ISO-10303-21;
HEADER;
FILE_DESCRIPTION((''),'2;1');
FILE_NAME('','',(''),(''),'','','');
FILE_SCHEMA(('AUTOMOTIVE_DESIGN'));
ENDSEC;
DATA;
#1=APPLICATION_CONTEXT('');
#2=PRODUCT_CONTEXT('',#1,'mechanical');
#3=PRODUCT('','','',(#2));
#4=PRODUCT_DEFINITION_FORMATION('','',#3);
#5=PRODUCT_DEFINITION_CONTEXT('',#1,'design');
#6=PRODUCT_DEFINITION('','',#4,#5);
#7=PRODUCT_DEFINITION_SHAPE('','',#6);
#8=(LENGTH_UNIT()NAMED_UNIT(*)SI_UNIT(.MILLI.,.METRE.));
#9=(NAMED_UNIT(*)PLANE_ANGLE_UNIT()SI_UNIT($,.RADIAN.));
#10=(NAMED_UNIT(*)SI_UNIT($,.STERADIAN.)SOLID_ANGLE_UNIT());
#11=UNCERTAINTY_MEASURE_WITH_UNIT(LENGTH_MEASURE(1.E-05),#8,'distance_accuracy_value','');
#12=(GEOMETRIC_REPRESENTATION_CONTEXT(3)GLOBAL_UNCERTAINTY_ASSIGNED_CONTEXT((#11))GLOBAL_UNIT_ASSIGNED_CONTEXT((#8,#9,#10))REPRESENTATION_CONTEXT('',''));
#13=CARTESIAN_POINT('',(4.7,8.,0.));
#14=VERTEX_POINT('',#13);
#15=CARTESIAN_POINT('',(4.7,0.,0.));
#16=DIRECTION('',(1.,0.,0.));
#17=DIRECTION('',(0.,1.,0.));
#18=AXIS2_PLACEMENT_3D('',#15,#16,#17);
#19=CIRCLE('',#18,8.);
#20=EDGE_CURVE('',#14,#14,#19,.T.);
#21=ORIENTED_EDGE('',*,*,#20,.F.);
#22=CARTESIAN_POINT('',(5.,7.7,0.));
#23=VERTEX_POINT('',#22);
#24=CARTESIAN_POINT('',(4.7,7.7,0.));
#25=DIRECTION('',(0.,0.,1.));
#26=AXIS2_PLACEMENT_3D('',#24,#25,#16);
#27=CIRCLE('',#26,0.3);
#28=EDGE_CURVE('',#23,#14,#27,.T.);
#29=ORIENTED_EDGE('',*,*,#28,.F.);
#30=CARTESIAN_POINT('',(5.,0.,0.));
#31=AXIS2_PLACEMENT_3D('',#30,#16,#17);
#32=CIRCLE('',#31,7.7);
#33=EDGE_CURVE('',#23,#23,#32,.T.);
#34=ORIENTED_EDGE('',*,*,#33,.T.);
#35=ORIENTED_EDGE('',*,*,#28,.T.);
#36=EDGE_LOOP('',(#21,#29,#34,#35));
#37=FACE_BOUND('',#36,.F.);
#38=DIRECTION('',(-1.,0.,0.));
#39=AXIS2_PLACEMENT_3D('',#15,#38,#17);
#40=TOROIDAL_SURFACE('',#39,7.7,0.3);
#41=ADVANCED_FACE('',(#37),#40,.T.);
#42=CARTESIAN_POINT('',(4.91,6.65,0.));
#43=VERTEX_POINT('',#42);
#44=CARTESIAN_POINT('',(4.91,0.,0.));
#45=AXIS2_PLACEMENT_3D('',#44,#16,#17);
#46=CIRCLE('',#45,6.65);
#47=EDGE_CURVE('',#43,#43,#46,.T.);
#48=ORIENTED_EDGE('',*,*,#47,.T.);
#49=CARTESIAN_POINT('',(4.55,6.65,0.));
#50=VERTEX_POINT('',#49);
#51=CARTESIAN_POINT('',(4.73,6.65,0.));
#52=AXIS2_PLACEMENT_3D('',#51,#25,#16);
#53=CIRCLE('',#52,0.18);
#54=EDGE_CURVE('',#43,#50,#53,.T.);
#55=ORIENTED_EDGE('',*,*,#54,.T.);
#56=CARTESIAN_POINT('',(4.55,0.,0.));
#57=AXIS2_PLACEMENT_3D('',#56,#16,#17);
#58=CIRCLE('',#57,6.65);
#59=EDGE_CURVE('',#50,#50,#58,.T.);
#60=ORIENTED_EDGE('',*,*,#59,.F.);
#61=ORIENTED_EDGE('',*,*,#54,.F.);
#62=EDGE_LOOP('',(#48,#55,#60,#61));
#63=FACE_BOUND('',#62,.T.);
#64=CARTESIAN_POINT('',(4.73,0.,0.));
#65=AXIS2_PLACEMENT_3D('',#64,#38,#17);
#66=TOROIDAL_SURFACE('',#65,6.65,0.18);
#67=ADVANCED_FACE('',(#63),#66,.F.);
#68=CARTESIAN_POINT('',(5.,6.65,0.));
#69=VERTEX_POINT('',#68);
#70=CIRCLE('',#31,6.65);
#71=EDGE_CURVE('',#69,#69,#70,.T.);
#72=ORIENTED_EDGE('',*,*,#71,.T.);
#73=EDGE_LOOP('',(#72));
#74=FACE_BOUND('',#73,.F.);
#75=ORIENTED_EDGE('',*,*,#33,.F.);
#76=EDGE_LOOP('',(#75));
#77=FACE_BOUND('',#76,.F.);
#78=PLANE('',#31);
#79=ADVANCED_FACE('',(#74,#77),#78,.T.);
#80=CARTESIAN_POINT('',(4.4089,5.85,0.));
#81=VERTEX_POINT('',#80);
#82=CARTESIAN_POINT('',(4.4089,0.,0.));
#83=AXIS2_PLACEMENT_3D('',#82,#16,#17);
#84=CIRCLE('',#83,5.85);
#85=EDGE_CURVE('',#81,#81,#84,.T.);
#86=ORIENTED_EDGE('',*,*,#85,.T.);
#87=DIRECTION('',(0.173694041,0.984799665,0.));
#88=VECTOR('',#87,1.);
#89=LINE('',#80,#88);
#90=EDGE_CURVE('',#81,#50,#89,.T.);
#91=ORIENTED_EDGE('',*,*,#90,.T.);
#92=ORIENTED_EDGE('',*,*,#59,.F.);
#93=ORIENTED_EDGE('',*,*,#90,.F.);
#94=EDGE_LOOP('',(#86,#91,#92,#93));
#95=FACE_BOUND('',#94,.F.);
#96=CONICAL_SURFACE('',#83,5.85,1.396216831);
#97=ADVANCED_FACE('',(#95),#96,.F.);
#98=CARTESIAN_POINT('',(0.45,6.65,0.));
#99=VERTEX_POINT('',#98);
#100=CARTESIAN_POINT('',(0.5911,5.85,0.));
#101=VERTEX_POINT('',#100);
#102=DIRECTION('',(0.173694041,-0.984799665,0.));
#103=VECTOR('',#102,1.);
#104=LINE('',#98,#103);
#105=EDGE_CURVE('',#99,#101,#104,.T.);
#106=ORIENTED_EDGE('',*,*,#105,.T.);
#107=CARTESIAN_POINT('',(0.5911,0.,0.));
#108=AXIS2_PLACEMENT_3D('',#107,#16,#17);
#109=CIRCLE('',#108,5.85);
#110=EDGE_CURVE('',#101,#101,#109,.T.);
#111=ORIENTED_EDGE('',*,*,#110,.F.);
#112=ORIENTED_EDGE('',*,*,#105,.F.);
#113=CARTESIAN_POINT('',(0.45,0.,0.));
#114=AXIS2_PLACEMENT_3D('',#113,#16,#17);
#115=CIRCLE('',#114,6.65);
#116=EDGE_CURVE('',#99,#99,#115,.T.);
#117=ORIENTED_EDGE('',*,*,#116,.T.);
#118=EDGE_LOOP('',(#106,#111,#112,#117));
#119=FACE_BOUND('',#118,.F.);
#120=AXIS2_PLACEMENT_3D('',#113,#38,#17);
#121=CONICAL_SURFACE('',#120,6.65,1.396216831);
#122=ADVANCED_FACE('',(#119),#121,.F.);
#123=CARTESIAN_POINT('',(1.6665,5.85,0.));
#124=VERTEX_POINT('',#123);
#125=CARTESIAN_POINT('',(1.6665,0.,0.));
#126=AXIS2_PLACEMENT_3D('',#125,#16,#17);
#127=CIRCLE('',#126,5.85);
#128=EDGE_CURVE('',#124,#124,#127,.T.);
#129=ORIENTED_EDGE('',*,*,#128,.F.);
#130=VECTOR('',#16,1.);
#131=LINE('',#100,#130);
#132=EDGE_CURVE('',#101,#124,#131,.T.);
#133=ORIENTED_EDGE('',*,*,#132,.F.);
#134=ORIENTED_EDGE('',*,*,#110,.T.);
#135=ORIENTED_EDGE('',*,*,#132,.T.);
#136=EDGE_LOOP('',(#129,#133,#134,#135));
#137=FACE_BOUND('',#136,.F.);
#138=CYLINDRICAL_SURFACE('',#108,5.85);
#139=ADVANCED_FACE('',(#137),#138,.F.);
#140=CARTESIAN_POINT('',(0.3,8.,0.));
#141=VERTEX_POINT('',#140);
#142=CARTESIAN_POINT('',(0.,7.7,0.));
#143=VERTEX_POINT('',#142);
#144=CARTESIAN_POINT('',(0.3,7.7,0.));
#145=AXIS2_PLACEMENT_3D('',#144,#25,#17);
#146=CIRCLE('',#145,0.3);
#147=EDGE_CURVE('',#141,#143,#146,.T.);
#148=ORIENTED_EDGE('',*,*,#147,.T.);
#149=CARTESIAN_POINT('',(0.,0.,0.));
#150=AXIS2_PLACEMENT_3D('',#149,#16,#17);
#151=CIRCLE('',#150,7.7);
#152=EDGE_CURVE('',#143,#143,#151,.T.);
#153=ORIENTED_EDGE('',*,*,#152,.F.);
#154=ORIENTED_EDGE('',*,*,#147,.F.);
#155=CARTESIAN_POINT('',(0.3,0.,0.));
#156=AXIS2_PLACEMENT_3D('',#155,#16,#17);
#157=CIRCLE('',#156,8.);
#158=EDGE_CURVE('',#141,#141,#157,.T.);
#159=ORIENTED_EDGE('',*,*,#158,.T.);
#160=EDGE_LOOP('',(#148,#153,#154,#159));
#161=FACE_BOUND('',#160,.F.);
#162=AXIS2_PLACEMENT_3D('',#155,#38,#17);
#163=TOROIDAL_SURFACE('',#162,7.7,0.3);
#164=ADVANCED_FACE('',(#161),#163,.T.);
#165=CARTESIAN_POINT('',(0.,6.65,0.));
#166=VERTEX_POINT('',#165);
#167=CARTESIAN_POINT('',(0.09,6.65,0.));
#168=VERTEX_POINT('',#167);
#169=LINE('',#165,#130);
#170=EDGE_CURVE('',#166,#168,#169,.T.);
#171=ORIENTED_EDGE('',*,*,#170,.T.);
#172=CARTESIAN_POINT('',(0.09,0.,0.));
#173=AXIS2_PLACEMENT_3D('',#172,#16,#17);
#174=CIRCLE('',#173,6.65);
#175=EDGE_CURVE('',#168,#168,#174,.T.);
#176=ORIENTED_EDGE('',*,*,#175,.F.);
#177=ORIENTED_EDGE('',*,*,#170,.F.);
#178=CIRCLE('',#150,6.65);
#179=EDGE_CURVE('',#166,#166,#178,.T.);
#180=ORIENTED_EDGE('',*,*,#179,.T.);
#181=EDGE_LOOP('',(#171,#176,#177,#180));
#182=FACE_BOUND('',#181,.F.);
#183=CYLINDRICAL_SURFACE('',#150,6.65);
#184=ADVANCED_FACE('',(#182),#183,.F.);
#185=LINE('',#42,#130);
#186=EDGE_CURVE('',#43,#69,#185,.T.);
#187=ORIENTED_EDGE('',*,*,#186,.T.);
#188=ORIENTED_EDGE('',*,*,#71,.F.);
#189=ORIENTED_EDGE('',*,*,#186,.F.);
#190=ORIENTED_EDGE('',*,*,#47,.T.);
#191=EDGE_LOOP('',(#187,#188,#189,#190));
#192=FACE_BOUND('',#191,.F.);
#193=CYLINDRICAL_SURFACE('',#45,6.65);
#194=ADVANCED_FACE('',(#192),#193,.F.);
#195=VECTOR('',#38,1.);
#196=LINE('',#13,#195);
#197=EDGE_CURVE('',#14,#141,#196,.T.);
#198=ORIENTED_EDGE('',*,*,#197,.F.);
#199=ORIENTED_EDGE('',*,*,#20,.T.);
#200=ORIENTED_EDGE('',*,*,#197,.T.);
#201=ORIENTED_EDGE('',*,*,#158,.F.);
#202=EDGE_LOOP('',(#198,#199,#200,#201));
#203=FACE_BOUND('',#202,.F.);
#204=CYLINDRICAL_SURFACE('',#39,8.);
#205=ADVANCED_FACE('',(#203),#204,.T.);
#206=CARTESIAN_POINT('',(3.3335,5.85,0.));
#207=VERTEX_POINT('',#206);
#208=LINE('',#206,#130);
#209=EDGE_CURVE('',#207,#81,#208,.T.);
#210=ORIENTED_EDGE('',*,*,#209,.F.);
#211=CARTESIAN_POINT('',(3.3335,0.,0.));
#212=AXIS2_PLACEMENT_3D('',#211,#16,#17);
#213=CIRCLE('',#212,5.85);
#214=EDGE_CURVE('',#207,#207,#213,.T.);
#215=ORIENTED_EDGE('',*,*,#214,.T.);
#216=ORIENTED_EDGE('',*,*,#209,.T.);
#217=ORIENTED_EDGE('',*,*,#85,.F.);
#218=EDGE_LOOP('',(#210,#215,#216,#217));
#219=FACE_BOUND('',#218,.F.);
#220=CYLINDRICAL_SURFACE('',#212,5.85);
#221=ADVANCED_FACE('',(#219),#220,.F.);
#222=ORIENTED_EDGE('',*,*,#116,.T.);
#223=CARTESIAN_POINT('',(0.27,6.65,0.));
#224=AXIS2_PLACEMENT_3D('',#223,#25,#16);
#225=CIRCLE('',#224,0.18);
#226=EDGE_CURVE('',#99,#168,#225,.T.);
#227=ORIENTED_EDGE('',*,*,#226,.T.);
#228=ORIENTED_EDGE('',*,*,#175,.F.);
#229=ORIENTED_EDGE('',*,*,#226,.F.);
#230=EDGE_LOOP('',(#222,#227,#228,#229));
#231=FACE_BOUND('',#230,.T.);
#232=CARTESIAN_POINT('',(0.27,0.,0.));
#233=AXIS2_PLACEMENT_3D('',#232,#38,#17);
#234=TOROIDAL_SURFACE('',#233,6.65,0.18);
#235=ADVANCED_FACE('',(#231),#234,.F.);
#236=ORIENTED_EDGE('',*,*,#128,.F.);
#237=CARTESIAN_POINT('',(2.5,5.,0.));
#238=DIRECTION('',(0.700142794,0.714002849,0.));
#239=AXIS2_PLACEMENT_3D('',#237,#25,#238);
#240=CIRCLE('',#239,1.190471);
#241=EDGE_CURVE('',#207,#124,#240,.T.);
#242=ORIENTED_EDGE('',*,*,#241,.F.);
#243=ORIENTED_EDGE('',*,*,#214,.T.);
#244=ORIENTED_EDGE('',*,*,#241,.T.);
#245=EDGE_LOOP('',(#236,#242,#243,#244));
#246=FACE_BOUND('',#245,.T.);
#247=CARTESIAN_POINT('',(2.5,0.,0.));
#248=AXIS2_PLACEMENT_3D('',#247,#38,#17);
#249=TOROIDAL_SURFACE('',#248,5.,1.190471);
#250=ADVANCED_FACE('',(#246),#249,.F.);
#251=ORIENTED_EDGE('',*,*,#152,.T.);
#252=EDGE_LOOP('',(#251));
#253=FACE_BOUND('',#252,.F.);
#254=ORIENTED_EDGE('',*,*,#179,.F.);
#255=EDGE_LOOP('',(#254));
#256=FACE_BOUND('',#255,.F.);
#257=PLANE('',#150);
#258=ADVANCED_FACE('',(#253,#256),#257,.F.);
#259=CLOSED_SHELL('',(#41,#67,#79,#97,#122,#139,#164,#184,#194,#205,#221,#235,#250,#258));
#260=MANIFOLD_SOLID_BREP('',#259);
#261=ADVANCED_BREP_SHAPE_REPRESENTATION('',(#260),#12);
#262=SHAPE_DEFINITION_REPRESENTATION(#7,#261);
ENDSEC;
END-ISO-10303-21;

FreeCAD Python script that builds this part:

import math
import FreeCAD as App
import Part
import Sketcher

V = App.Vector
Q = App.Units.Quantity

doc = App.newDocument("Part")
body = doc.addObject("PartDesign::Body", "Body")

# Sketch on XY plane
sketch1 = body.newObject("Sketcher::SketchObject", "Sketch")
sketch1.AttachmentSupport = (doc.getObject("XY_Plane"), [""])
sketch1.MapMode = "FlatFace"
sketch1.addGeometry([
    Part.LineSegment(V(0, 7.7, 0), V(0, 6.65, 0)),  # 0
    Part.LineSegment(V(0, 6.65, 0), V(0.09, 6.65, 0)),  # 1
    Part.ArcOfCircle(Part.Circle(V(0.27, 6.65, 0), V(0, 0, 1), 0.18), math.radians(0), math.radians(180)),  # 2
    Part.LineSegment(V(0.45, 6.65, 0), V(0.5911, 5.85, 0)),  # 3
    Part.LineSegment(V(0.5911, 5.85, 0), V(1.6665, 5.85, 0)),  # 4
    Part.ArcOfCircle(Part.Circle(V(2.5, 5, 0), V(0, 0, 1), 1.190471), math.radians(45.561539), math.radians(134.438461)),  # 5
    Part.LineSegment(V(3.3335, 5.85, 0), V(4.4089, 5.85, 0)),  # 6
    Part.LineSegment(V(4.4089, 5.85, 0), V(4.55, 6.65, 0)),  # 7
    Part.ArcOfCircle(Part.Circle(V(4.73, 6.65, 0), V(0, 0, 1), 0.18), math.radians(0), math.radians(180)),  # 8
    Part.LineSegment(V(4.91, 6.65, 0), V(5, 6.65, 0)),  # 9
    Part.LineSegment(V(5, 6.65, 0), V(5, 7.7, 0)),  # 10
    Part.ArcOfCircle(Part.Circle(V(4.7, 7.7, 0), V(0, 0, 1), 0.3), math.radians(0), math.radians(90)),  # 11
    Part.LineSegment(V(4.7, 8, 0), V(0.3, 8, 0)),  # 12
    Part.ArcOfCircle(Part.Circle(V(0.3, 7.7, 0), V(0, 0, 1), 0.3), math.radians(90), math.radians(180)),  # 13
], False)
sketch1.addConstraint([
    Sketcher.Constraint("Coincident", 0, 2, 1, 1),
    Sketcher.Constraint("Coincident", 1, 2, 2, 2),
    Sketcher.Constraint("Coincident", 2, 1, 3, 1),
    Sketcher.Constraint("Coincident", 3, 2, 4, 1),
    Sketcher.Constraint("Coincident", 4, 2, 5, 2),
    Sketcher.Constraint("Coincident", 5, 1, 6, 1),
    Sketcher.Constraint("Coincident", 6, 2, 7, 1),
    Sketcher.Constraint("Coincident", 7, 2, 8, 2),
    Sketcher.Constraint("Coincident", 8, 1, 9, 1),
    Sketcher.Constraint("Coincident", 9, 2, 10, 1),
    Sketcher.Constraint("Tangent", 10, 2, 11, 1),
    Sketcher.Constraint("Tangent", 11, 2, 12, 1),
    Sketcher.Constraint("Tangent", 12, 2, 13, 1),
    Sketcher.Constraint("Tangent", 13, 2, 0, 1),
    Sketcher.Constraint("Vertical", 0),
    Sketcher.Constraint("Horizontal", 1),
    Sketcher.Constraint("Horizontal", 4),
    Sketcher.Constraint("Horizontal", 6),
    Sketcher.Constraint("Horizontal", 9),
    Sketcher.Constraint("Vertical", 10),
    Sketcher.Constraint("Horizontal", 12),
    Sketcher.Constraint("Equal", 2, 8),
    Sketcher.Constraint("Equal", 11, 13),
    Sketcher.Constraint("PointOnObject", 0, 2, -2),
    Sketcher.Constraint("Horizontal", 2, 3, 8, 3),
    Sketcher.Constraint("Horizontal", 8, 3, 0, 2),
    Sketcher.Constraint("Horizontal", 1, 2, 2, 1),
    Sketcher.Constraint("Horizontal", 4, 2, 5, 1),
    Sketcher.Constraint("Horizontal", 2, 1, 7, 2),
    Sketcher.Constraint("Horizontal", 7, 2, 8, 1),
    Sketcher.Constraint("Equal", 4, 6),
    Sketcher.Constraint("Equal", 1, 9),
    Sketcher.Constraint("Equal", 3, 7),
    Sketcher.Constraint("Radius", 11, Q("0.3 mm")),
    Sketcher.Constraint("Radius", 2, Q("0.18 mm")),
    Sketcher.Constraint("DistanceX", 12, 2, 12, 1, Q("4.4 mm")),
    Sketcher.Constraint("DistanceY", -1, 1, 5, 3, Q("5 mm")),
    Sketcher.Constraint("DistanceY", -1, 1, 11, 2, Q("8 mm")),
    Sketcher.Constraint("DistanceX", 1, 1, 1, 2, Q("0.09 mm")),
    Sketcher.Constraint("DistanceY", 0, 2, 0, 1, Q("1.05 mm")),
    Sketcher.Constraint("Radius", 5, Q("1.1905 mm")),
    Sketcher.Constraint("DistanceY", 3, 2, 2, 1, Q("0.8 mm")),
    Sketcher.Constraint("DistanceX", 4, 1, 4, 2, Q("1.0754 mm")),
])
revolution = body.newObject("PartDesign::Revolution", "Revolution")
revolution.Profile = sketch1
revolution.ReferenceAxis = (sketch1, ["H_Axis"])
revolution.Angle = 360

doc.recompute()
